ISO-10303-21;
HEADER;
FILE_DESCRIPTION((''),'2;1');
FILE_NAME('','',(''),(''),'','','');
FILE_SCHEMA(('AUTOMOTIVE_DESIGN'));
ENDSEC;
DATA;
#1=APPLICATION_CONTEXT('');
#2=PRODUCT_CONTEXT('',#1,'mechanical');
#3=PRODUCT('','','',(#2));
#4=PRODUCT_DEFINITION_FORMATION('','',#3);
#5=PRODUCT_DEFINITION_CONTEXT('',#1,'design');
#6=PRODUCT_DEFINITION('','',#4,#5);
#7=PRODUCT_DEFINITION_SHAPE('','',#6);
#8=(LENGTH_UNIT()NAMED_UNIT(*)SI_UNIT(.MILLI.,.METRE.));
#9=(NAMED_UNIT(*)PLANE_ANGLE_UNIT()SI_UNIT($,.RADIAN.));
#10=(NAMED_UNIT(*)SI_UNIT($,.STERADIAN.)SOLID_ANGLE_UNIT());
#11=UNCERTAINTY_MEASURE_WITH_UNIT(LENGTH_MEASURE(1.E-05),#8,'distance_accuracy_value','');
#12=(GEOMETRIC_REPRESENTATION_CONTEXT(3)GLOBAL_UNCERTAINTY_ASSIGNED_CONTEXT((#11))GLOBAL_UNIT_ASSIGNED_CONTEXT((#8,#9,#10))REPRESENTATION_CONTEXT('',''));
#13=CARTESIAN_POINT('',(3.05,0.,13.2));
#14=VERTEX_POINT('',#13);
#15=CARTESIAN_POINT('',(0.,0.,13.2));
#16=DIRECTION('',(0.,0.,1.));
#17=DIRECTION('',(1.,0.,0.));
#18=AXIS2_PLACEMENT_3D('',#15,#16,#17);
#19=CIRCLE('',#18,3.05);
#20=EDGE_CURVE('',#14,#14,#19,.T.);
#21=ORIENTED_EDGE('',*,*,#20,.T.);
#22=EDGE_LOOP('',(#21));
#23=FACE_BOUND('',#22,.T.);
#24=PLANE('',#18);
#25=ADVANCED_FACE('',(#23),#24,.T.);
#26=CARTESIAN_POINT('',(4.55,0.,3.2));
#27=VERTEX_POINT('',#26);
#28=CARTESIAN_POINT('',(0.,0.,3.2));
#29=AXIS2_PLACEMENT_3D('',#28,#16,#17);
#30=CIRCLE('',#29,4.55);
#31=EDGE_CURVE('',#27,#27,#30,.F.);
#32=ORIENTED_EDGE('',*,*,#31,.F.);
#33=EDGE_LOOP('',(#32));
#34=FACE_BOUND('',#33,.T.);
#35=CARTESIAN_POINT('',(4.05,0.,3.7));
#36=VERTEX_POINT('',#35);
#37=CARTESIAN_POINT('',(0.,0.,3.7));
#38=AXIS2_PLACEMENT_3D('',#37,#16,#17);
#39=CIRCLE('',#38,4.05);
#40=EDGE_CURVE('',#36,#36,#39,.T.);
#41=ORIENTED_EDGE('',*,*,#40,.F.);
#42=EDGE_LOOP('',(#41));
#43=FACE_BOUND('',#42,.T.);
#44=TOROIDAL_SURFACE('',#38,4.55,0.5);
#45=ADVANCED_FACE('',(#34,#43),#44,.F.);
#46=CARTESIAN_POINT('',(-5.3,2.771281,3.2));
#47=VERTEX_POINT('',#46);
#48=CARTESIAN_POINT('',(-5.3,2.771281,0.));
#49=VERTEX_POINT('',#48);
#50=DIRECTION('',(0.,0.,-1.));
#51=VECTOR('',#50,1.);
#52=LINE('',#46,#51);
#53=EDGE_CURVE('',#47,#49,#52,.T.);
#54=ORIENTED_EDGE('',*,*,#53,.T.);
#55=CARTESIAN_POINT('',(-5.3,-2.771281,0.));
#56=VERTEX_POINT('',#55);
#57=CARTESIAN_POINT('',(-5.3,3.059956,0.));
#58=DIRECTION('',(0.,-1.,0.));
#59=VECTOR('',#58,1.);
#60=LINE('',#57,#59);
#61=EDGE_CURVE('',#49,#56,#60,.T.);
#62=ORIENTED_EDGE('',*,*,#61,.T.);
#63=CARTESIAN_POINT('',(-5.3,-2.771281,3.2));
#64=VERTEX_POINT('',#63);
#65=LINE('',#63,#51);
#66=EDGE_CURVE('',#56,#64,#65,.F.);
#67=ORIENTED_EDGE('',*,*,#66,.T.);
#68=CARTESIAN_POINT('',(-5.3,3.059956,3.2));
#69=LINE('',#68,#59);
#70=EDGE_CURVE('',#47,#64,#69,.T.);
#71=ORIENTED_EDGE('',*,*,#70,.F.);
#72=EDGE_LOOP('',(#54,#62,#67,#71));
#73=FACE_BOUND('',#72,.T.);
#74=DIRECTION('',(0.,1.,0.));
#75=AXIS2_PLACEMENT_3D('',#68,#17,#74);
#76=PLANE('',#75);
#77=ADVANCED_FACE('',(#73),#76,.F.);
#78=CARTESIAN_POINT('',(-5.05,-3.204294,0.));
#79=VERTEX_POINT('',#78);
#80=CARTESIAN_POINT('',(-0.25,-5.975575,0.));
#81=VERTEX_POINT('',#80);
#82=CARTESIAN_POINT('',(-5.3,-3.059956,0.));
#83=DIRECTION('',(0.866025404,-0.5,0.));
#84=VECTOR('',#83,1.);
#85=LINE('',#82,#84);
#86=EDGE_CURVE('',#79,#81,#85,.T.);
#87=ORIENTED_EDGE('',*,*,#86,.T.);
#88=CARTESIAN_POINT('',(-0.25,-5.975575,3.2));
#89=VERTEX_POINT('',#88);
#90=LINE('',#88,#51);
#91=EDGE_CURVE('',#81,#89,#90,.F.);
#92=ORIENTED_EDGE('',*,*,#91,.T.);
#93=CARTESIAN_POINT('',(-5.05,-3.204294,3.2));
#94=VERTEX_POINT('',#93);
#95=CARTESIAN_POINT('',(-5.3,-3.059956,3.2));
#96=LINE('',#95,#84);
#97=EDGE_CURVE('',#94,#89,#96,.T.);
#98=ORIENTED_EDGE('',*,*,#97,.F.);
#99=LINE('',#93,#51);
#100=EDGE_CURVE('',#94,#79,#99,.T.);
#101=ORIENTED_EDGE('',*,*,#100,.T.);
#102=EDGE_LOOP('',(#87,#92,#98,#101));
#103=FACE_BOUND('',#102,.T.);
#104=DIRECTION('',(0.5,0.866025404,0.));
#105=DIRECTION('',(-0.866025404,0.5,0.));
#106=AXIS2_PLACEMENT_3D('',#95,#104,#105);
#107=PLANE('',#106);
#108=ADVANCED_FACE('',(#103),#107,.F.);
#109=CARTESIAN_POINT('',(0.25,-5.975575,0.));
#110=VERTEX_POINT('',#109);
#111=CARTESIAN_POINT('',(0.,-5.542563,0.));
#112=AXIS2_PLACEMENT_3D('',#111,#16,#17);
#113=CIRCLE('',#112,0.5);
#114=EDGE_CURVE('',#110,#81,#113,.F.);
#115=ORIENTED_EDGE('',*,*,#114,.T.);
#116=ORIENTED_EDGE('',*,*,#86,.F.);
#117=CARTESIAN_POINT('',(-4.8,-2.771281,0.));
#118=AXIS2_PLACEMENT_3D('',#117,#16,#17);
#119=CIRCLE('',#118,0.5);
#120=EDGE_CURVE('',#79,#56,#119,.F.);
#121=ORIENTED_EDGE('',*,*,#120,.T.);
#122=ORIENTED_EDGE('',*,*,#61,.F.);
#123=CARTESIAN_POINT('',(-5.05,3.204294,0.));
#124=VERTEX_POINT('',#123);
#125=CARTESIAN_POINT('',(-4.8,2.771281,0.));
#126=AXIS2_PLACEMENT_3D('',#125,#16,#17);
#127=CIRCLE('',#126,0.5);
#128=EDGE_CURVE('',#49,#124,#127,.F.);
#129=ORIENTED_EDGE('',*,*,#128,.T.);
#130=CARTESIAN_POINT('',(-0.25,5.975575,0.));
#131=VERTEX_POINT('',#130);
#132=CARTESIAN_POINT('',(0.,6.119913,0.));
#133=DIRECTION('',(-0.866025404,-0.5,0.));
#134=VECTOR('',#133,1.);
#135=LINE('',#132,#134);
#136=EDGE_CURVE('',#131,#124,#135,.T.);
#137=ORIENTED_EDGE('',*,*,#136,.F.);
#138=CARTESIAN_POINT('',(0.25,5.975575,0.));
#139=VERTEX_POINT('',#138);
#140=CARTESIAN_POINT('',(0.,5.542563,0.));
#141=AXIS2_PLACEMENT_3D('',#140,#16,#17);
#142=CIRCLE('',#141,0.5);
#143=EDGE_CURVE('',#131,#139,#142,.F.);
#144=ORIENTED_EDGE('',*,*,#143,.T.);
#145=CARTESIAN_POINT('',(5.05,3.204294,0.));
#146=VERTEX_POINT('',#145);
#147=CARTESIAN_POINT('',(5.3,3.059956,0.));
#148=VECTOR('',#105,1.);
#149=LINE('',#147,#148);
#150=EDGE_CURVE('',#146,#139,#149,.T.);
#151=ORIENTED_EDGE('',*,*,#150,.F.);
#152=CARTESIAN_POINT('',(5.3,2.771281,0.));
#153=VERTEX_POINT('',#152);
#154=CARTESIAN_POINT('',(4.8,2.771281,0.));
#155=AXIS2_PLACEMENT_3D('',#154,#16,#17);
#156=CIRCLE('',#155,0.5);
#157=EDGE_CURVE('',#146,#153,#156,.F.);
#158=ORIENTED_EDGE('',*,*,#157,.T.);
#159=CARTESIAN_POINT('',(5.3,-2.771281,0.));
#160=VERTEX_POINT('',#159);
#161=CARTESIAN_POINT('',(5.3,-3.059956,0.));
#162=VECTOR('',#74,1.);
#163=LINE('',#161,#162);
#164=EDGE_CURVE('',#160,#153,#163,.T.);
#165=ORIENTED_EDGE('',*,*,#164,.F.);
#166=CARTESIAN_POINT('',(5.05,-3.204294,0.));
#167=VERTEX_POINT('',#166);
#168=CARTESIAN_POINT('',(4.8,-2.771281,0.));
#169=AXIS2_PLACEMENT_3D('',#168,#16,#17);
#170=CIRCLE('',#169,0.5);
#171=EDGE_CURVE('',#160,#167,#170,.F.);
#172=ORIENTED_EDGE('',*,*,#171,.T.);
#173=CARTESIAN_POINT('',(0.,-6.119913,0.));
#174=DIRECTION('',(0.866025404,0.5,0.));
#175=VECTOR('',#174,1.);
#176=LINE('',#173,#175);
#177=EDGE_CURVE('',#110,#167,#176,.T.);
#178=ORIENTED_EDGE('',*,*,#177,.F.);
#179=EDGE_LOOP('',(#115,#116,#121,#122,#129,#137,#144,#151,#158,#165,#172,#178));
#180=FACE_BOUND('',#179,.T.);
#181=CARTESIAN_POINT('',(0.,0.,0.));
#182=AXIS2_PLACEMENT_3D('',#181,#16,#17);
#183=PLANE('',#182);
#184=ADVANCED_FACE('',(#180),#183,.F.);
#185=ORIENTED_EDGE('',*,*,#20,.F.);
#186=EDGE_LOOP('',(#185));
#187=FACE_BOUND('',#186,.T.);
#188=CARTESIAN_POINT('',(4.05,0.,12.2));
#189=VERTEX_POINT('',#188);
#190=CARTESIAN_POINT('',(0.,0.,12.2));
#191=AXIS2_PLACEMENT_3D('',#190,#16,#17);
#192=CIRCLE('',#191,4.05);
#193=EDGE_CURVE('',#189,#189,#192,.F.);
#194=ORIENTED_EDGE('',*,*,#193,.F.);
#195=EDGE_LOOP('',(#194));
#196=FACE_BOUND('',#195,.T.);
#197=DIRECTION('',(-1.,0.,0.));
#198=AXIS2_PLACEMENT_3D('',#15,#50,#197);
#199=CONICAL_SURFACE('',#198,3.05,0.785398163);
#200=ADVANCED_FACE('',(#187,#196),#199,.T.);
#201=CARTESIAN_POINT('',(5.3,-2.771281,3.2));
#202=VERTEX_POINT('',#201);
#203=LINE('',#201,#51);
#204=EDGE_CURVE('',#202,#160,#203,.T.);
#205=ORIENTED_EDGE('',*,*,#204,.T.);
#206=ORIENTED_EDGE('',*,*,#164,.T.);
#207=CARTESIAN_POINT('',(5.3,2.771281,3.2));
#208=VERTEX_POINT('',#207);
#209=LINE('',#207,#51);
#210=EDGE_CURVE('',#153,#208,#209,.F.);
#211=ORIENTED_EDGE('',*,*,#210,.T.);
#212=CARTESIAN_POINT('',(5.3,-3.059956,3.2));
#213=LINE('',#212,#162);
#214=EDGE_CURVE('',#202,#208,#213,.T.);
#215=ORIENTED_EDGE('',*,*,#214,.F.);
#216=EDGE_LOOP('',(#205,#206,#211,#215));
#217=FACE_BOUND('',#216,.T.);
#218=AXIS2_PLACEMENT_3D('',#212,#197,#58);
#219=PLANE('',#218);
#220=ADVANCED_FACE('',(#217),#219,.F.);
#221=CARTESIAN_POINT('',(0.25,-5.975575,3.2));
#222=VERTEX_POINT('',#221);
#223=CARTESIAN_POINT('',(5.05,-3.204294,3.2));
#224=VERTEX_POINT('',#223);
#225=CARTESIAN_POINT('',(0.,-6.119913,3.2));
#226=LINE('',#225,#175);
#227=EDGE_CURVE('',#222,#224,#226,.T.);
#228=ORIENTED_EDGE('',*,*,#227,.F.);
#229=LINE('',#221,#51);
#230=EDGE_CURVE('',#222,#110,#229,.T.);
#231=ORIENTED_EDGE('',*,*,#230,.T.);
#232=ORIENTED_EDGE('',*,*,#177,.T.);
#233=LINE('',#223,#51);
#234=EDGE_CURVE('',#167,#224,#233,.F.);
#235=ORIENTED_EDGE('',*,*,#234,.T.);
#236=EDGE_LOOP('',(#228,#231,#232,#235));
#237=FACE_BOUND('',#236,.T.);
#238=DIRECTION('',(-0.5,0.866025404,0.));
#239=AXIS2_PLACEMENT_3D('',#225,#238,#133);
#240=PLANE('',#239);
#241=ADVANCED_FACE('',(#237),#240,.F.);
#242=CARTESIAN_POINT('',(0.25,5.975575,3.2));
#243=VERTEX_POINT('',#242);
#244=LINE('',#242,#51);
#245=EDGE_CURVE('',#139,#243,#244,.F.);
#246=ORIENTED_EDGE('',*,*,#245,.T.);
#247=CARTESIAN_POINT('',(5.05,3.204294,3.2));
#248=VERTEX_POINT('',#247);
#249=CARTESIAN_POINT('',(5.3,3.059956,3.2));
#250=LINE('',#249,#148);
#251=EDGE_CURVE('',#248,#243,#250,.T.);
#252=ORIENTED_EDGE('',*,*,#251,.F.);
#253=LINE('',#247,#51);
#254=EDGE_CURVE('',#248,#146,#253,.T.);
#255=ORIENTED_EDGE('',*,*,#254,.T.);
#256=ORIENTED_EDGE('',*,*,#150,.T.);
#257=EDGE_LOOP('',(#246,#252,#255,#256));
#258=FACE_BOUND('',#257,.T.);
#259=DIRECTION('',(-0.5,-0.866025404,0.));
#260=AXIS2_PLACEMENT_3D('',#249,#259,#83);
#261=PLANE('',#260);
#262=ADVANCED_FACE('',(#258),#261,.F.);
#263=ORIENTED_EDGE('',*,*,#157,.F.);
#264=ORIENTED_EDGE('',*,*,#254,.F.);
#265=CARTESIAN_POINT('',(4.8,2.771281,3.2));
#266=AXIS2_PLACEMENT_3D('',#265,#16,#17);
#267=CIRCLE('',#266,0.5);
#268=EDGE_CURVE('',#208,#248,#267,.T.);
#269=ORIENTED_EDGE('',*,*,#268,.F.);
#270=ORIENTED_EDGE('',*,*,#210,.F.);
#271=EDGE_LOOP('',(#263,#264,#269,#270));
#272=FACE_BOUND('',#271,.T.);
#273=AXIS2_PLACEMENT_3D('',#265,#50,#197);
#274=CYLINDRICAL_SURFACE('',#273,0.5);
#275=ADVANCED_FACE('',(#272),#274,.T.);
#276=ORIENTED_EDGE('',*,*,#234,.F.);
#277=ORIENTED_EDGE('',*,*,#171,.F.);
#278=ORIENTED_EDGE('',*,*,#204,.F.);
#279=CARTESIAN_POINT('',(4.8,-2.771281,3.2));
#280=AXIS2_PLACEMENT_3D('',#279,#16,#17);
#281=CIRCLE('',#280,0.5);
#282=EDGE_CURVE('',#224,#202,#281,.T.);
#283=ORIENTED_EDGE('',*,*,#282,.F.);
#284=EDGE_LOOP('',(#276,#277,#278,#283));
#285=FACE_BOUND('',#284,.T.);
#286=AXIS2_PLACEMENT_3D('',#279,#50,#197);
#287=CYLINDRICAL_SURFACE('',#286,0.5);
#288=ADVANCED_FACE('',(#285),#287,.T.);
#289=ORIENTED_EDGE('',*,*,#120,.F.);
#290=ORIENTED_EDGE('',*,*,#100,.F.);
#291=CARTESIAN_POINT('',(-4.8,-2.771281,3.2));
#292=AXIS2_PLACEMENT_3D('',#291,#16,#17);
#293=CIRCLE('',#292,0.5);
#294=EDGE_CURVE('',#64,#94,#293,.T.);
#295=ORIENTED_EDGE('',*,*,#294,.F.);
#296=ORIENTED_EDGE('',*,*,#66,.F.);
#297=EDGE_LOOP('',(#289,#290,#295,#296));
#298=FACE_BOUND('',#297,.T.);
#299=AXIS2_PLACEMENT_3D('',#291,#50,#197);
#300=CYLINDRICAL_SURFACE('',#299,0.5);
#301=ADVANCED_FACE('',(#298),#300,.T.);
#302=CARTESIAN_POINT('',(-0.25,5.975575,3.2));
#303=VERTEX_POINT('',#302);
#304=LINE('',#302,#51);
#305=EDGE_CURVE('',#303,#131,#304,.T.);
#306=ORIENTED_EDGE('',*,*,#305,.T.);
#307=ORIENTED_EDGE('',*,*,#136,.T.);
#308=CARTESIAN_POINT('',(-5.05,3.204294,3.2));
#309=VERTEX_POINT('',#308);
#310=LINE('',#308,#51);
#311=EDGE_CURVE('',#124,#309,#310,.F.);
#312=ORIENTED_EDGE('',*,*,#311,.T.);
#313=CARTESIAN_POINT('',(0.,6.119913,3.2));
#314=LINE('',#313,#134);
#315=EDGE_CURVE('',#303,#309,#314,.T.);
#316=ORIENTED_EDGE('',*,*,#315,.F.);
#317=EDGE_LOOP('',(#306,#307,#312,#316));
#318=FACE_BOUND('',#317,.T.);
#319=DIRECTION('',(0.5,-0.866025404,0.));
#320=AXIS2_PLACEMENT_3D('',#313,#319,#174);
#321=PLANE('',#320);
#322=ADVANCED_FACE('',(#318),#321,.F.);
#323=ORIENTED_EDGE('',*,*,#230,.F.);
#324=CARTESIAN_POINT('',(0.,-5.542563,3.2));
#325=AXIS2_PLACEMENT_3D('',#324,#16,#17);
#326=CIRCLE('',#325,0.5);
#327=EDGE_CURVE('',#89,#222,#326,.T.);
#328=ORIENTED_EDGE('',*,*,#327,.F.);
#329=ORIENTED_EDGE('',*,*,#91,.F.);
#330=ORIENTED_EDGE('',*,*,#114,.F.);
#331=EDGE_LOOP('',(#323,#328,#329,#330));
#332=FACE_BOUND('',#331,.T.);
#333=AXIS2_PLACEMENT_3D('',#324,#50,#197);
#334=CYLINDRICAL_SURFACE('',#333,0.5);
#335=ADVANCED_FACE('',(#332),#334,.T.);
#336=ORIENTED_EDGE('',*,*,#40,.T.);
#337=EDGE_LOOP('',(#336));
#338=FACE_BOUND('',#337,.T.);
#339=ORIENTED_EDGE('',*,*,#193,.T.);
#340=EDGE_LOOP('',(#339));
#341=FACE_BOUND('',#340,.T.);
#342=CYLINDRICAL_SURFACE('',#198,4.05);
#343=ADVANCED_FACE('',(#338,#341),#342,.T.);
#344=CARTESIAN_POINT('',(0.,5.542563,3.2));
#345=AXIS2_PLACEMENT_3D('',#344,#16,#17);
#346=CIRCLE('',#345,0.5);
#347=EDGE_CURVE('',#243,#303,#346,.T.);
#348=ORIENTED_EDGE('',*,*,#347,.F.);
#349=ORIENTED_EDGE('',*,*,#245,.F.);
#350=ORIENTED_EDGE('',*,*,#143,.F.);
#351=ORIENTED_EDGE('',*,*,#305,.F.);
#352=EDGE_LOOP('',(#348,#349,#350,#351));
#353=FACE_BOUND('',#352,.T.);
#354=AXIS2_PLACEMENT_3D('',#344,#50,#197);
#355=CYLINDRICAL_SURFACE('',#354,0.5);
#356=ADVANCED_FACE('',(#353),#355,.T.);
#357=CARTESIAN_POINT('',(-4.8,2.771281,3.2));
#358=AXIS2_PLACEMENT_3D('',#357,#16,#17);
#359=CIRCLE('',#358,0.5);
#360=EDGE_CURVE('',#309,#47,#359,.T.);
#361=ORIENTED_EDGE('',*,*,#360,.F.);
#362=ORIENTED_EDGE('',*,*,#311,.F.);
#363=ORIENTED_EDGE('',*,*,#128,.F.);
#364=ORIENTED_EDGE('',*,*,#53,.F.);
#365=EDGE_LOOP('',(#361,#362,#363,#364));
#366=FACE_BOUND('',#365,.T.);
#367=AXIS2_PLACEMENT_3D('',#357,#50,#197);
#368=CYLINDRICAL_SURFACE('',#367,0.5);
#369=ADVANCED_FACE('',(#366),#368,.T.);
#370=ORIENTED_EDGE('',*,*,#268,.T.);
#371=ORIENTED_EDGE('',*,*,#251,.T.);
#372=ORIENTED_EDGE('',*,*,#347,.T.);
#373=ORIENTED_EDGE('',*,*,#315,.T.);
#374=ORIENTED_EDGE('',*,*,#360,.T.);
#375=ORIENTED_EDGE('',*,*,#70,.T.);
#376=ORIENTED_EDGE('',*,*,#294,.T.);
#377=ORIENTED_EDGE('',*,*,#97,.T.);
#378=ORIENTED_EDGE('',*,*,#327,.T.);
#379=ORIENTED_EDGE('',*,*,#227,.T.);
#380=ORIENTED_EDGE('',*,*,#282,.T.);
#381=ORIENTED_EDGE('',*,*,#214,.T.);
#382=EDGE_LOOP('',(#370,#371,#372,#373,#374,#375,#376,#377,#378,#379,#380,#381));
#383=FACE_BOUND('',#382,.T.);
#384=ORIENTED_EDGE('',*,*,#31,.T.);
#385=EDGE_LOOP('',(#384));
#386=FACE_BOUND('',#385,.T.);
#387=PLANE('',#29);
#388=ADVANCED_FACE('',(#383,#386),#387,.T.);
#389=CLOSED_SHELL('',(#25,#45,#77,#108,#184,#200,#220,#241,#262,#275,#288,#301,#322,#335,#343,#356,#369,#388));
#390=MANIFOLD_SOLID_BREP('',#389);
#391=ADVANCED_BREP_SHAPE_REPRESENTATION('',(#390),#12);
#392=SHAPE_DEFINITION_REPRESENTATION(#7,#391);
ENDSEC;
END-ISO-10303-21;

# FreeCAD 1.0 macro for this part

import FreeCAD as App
import Part
import Sketcher

V = App.Vector
Q = App.Units.Quantity


def edges_at(feature, points):
    """Names of the edges that pass closest to the given points."""
    edges = feature.Shape.Edges
    near = lambda p: min(range(len(edges)), key=lambda i: edges[i].distToShape(Part.Vertex(*p))[0])
    return sorted({f"Edge{near(p) + 1}" for p in points})


def add_polygon(sketch, points):
    """Adds a closed chain of lines whose ends are joined by coincident constraints."""
    first, n = sketch.GeometryCount, len(points)
    for a, b in zip(points, points[1:] + points[:1]):
        sketch.addGeometry(Part.LineSegment(App.Vector(*a, 0), App.Vector(*b, 0)), False)
    for i in range(n):
        sketch.addConstraint(Sketcher.Constraint("Coincident", first + i, 2, first + (i + 1) % n, 1))

doc = App.newDocument("Part")
body = doc.addObject("PartDesign::Body", "Body")

sketch1 = body.newObject("Sketcher::SketchObject", "Sketch")
sketch1.AttachmentSupport = (doc.getObject("XY_Plane"), [""])
sketch1.MapMode = "FlatFace"
add_polygon(sketch1, [(5, 3), (0, 6), (-5, 3), (-5, -3), (0, -6), (5, -3)])
sketch1.addConstraint(Sketcher.Constraint("Vertical", 2))
sketch1.addConstraint(Sketcher.Constraint("Vertical", 5))
sketch1.addConstraint(Sketcher.Constraint("Symmetric", 0, 2, 3, 2, -1, 1))
sketch1.addConstraint(Sketcher.Constraint("Symmetric", 1, 2, 4, 2, -1, 1))
sketch1.addConstraint(Sketcher.Constraint("PointOnObject", 0, 2, -2))
sketch1.addConstraint(Sketcher.Constraint("Parallel", 0, 3))
sketch1.addConstraint(Sketcher.Constraint("Horizontal", 2, 2, 4, 2))
sketch1.addConstraint(Sketcher.Constraint("Angle", 0, Q("150 deg")))
sketch1.addConstraint(Sketcher.Constraint("DistanceX", 1, 2, -1, 1, 5.3))
sketch1.addConstraint(Sketcher.Constraint("DistanceY", 2, 2, 2, 1, 6.119913))
pad1 = body.newObject("PartDesign::Pad", "Pad")
pad1.Profile = sketch1
pad1.Length = 3.2

sketch2 = body.newObject("Sketcher::SketchObject", "Sketch001")
sketch2.AttachmentSupport = (doc.getObject("XY_Plane"), [""])
sketch2.MapMode = "FlatFace"
sketch2.AttachmentOffset = App.Placement(V(0, 0, 3.2), App.Rotation())
sketch2.addGeometry(Part.Circle(V(0, 0, 0), V(0, 0, 1), 4), False)
sketch2.addConstraint(Sketcher.Constraint("Coincident", 0, 3, -1, 1))
sketch2.addConstraint(Sketcher.Constraint("Diameter", 0, 8.1))
pad2 = body.newObject("PartDesign::Pad", "Pad001")
pad2.Profile = sketch2
pad2.Length = 10
doc.recompute()

fillet = body.newObject("PartDesign::Fillet", "Fillet")
fillet.Base = (pad2, edges_at(pad2, [
    (5.3, -3.06, 1.6),
    (0, -6.12, 1.6),
    (-5.3, -3.06, 1.6),
    (-5.3, 3.06, 1.6),
    (0, 6.12, 1.6),
    (5.3, 3.06, 1.6),
    (-4.05, 0, 3.2),
]))
fillet.Radius = 0.5
doc.recompute()

chamfer = body.newObject("PartDesign::Chamfer", "Chamfer")
chamfer.Base = (fillet, edges_at(fillet, [(-4.05, 0, 13.2)]))
chamfer.Size = 1

doc.recompute()
